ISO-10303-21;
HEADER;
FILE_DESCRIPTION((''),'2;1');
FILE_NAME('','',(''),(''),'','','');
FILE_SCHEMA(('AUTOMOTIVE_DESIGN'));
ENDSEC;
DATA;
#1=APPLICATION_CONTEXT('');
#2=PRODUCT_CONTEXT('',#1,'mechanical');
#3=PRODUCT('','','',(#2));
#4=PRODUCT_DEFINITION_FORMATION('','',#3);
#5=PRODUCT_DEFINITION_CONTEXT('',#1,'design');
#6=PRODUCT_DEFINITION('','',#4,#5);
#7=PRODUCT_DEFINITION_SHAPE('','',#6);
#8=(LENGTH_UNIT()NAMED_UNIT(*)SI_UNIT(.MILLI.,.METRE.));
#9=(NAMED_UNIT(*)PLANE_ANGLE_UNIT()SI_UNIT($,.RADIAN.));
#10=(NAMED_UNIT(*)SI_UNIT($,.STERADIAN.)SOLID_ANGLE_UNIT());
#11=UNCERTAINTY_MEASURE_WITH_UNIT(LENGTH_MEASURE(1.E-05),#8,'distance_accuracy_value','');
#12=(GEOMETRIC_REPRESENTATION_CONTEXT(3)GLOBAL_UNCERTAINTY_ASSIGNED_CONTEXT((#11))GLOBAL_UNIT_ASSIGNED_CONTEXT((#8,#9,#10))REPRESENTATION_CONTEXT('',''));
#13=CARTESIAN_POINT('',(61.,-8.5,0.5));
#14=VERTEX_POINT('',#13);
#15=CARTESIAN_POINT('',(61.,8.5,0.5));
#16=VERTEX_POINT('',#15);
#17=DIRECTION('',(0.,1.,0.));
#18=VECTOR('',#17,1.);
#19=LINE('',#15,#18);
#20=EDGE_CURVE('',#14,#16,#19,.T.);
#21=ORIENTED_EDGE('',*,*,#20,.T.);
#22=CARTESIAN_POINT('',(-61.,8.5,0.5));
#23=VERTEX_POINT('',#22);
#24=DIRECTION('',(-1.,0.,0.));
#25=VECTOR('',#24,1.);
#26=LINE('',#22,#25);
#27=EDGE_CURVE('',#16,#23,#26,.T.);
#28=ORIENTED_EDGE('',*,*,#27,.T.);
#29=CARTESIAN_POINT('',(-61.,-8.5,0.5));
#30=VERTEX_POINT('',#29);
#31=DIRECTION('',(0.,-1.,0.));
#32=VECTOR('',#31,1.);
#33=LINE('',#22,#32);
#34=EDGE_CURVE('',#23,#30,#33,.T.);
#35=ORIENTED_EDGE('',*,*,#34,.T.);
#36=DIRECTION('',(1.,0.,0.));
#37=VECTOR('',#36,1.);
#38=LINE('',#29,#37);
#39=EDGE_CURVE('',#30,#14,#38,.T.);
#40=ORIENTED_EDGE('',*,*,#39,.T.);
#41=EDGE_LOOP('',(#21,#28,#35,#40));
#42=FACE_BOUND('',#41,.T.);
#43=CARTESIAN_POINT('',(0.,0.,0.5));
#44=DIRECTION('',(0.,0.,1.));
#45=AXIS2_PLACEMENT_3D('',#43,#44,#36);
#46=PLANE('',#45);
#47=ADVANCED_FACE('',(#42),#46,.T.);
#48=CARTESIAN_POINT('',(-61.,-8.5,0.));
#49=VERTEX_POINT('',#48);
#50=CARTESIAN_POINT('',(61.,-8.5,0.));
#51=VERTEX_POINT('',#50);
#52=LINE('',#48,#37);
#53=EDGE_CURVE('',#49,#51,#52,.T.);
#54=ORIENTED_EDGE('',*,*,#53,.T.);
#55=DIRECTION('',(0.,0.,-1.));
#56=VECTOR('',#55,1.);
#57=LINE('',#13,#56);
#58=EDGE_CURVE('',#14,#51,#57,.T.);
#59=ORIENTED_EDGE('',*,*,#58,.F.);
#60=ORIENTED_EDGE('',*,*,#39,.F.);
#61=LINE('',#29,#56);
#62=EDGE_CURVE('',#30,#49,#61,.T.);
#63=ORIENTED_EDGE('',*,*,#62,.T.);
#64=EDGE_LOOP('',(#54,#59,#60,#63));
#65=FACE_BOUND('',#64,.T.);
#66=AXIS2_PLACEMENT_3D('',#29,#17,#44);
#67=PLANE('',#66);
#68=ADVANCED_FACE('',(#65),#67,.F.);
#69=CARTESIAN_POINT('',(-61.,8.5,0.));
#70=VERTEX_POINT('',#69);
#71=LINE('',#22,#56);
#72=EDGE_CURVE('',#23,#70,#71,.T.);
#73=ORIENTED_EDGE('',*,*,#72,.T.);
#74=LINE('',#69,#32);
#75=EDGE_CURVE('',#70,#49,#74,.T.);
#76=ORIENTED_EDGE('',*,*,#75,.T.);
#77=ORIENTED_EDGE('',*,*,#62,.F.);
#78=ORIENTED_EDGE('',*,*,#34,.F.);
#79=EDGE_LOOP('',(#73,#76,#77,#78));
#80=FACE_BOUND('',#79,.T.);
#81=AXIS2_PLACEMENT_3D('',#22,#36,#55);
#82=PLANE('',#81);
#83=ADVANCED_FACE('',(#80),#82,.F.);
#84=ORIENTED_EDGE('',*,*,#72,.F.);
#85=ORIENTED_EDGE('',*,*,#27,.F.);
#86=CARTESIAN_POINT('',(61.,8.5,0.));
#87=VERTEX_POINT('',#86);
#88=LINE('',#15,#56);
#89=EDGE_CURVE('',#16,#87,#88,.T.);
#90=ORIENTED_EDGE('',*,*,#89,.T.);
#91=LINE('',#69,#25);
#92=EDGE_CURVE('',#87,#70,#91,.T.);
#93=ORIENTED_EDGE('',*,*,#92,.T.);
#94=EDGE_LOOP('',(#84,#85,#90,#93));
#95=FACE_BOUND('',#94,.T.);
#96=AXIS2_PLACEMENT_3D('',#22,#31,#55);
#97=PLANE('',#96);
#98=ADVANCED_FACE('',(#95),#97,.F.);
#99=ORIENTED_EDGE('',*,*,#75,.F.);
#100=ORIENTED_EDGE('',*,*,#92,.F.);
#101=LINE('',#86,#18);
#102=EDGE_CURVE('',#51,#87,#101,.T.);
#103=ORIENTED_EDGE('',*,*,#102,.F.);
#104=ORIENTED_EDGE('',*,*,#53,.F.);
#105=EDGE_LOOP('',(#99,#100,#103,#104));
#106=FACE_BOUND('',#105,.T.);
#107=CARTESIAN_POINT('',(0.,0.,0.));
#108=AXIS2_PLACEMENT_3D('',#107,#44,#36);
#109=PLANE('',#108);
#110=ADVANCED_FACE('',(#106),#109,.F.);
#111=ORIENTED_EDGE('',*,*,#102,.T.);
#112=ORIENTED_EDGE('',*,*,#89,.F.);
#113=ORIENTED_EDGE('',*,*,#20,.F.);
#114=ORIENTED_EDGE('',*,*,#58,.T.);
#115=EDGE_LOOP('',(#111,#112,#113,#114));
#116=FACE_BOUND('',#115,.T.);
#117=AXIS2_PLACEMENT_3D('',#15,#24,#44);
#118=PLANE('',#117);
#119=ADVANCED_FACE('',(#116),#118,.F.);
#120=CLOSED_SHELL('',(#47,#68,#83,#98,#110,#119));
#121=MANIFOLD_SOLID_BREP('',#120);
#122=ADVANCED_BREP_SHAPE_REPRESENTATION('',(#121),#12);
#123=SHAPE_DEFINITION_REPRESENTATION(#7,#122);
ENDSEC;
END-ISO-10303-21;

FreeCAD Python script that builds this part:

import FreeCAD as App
import Part
import Sketcher

doc = App.newDocument("Part")
body = doc.addObject("PartDesign::Body", "Body")

# Sketch on XY plane
sketch1 = doc.addObject("Sketcher::SketchObject", "Sketch")
body.addObject(sketch1)
sketch1.AttachmentSupport = (doc.XY_Plane, [""])
sketch1.MapMode = "FlatFace"
sketch1.addGeometry(Part.LineSegment(App.Vector(-61, 8.5, 0), App.Vector(-61, -8.5, 0)), False)
sketch1.addGeometry(Part.LineSegment(App.Vector(-61, -8.5, 0), App.Vector(61, -8.5, 0)), False)
sketch1.addGeometry(Part.LineSegment(App.Vector(61, -8.5, 0), App.Vector(61, 8.5, 0)), False)
sketch1.addGeometry(Part.LineSegment(App.Vector(61, 8.5, 0), App.Vector(-61, 8.5, 0)), False)
sketch1.addConstraint(Sketcher.Constraint("Coincident", 0, 2, 1, 1))
sketch1.addConstraint(Sketcher.Constraint("Coincident", 1, 2, 2, 1))
sketch1.addConstraint(Sketcher.Constraint("Coincident", 2, 2, 3, 1))
sketch1.addConstraint(Sketcher.Constraint("Coincident", 3, 2, 0, 1))
sketch1.addConstraint(Sketcher.Constraint("Vertical", 0))
sketch1.addConstraint(Sketcher.Constraint("Horizontal", 1))
sketch1.addConstraint(Sketcher.Constraint("Vertical", 2))
sketch1.addConstraint(Sketcher.Constraint("Horizontal", 3))
sketch1.addConstraint(Sketcher.Constraint("Symmetric", 0, 2, 2, 2, -1, 1))
sketch1.addConstraint(Sketcher.Constraint("DistanceX", 1, 1, 1, 2, 122.0))
sketch1.addConstraint(Sketcher.Constraint("DistanceY", 0, 2, 0, 1, 17.0))
pad1 = doc.addObject("PartDesign::Pad", "Pad")
body.addObject(pad1)
pad1.Profile = sketch1
pad1.Length = 0.5

doc.recompute()
